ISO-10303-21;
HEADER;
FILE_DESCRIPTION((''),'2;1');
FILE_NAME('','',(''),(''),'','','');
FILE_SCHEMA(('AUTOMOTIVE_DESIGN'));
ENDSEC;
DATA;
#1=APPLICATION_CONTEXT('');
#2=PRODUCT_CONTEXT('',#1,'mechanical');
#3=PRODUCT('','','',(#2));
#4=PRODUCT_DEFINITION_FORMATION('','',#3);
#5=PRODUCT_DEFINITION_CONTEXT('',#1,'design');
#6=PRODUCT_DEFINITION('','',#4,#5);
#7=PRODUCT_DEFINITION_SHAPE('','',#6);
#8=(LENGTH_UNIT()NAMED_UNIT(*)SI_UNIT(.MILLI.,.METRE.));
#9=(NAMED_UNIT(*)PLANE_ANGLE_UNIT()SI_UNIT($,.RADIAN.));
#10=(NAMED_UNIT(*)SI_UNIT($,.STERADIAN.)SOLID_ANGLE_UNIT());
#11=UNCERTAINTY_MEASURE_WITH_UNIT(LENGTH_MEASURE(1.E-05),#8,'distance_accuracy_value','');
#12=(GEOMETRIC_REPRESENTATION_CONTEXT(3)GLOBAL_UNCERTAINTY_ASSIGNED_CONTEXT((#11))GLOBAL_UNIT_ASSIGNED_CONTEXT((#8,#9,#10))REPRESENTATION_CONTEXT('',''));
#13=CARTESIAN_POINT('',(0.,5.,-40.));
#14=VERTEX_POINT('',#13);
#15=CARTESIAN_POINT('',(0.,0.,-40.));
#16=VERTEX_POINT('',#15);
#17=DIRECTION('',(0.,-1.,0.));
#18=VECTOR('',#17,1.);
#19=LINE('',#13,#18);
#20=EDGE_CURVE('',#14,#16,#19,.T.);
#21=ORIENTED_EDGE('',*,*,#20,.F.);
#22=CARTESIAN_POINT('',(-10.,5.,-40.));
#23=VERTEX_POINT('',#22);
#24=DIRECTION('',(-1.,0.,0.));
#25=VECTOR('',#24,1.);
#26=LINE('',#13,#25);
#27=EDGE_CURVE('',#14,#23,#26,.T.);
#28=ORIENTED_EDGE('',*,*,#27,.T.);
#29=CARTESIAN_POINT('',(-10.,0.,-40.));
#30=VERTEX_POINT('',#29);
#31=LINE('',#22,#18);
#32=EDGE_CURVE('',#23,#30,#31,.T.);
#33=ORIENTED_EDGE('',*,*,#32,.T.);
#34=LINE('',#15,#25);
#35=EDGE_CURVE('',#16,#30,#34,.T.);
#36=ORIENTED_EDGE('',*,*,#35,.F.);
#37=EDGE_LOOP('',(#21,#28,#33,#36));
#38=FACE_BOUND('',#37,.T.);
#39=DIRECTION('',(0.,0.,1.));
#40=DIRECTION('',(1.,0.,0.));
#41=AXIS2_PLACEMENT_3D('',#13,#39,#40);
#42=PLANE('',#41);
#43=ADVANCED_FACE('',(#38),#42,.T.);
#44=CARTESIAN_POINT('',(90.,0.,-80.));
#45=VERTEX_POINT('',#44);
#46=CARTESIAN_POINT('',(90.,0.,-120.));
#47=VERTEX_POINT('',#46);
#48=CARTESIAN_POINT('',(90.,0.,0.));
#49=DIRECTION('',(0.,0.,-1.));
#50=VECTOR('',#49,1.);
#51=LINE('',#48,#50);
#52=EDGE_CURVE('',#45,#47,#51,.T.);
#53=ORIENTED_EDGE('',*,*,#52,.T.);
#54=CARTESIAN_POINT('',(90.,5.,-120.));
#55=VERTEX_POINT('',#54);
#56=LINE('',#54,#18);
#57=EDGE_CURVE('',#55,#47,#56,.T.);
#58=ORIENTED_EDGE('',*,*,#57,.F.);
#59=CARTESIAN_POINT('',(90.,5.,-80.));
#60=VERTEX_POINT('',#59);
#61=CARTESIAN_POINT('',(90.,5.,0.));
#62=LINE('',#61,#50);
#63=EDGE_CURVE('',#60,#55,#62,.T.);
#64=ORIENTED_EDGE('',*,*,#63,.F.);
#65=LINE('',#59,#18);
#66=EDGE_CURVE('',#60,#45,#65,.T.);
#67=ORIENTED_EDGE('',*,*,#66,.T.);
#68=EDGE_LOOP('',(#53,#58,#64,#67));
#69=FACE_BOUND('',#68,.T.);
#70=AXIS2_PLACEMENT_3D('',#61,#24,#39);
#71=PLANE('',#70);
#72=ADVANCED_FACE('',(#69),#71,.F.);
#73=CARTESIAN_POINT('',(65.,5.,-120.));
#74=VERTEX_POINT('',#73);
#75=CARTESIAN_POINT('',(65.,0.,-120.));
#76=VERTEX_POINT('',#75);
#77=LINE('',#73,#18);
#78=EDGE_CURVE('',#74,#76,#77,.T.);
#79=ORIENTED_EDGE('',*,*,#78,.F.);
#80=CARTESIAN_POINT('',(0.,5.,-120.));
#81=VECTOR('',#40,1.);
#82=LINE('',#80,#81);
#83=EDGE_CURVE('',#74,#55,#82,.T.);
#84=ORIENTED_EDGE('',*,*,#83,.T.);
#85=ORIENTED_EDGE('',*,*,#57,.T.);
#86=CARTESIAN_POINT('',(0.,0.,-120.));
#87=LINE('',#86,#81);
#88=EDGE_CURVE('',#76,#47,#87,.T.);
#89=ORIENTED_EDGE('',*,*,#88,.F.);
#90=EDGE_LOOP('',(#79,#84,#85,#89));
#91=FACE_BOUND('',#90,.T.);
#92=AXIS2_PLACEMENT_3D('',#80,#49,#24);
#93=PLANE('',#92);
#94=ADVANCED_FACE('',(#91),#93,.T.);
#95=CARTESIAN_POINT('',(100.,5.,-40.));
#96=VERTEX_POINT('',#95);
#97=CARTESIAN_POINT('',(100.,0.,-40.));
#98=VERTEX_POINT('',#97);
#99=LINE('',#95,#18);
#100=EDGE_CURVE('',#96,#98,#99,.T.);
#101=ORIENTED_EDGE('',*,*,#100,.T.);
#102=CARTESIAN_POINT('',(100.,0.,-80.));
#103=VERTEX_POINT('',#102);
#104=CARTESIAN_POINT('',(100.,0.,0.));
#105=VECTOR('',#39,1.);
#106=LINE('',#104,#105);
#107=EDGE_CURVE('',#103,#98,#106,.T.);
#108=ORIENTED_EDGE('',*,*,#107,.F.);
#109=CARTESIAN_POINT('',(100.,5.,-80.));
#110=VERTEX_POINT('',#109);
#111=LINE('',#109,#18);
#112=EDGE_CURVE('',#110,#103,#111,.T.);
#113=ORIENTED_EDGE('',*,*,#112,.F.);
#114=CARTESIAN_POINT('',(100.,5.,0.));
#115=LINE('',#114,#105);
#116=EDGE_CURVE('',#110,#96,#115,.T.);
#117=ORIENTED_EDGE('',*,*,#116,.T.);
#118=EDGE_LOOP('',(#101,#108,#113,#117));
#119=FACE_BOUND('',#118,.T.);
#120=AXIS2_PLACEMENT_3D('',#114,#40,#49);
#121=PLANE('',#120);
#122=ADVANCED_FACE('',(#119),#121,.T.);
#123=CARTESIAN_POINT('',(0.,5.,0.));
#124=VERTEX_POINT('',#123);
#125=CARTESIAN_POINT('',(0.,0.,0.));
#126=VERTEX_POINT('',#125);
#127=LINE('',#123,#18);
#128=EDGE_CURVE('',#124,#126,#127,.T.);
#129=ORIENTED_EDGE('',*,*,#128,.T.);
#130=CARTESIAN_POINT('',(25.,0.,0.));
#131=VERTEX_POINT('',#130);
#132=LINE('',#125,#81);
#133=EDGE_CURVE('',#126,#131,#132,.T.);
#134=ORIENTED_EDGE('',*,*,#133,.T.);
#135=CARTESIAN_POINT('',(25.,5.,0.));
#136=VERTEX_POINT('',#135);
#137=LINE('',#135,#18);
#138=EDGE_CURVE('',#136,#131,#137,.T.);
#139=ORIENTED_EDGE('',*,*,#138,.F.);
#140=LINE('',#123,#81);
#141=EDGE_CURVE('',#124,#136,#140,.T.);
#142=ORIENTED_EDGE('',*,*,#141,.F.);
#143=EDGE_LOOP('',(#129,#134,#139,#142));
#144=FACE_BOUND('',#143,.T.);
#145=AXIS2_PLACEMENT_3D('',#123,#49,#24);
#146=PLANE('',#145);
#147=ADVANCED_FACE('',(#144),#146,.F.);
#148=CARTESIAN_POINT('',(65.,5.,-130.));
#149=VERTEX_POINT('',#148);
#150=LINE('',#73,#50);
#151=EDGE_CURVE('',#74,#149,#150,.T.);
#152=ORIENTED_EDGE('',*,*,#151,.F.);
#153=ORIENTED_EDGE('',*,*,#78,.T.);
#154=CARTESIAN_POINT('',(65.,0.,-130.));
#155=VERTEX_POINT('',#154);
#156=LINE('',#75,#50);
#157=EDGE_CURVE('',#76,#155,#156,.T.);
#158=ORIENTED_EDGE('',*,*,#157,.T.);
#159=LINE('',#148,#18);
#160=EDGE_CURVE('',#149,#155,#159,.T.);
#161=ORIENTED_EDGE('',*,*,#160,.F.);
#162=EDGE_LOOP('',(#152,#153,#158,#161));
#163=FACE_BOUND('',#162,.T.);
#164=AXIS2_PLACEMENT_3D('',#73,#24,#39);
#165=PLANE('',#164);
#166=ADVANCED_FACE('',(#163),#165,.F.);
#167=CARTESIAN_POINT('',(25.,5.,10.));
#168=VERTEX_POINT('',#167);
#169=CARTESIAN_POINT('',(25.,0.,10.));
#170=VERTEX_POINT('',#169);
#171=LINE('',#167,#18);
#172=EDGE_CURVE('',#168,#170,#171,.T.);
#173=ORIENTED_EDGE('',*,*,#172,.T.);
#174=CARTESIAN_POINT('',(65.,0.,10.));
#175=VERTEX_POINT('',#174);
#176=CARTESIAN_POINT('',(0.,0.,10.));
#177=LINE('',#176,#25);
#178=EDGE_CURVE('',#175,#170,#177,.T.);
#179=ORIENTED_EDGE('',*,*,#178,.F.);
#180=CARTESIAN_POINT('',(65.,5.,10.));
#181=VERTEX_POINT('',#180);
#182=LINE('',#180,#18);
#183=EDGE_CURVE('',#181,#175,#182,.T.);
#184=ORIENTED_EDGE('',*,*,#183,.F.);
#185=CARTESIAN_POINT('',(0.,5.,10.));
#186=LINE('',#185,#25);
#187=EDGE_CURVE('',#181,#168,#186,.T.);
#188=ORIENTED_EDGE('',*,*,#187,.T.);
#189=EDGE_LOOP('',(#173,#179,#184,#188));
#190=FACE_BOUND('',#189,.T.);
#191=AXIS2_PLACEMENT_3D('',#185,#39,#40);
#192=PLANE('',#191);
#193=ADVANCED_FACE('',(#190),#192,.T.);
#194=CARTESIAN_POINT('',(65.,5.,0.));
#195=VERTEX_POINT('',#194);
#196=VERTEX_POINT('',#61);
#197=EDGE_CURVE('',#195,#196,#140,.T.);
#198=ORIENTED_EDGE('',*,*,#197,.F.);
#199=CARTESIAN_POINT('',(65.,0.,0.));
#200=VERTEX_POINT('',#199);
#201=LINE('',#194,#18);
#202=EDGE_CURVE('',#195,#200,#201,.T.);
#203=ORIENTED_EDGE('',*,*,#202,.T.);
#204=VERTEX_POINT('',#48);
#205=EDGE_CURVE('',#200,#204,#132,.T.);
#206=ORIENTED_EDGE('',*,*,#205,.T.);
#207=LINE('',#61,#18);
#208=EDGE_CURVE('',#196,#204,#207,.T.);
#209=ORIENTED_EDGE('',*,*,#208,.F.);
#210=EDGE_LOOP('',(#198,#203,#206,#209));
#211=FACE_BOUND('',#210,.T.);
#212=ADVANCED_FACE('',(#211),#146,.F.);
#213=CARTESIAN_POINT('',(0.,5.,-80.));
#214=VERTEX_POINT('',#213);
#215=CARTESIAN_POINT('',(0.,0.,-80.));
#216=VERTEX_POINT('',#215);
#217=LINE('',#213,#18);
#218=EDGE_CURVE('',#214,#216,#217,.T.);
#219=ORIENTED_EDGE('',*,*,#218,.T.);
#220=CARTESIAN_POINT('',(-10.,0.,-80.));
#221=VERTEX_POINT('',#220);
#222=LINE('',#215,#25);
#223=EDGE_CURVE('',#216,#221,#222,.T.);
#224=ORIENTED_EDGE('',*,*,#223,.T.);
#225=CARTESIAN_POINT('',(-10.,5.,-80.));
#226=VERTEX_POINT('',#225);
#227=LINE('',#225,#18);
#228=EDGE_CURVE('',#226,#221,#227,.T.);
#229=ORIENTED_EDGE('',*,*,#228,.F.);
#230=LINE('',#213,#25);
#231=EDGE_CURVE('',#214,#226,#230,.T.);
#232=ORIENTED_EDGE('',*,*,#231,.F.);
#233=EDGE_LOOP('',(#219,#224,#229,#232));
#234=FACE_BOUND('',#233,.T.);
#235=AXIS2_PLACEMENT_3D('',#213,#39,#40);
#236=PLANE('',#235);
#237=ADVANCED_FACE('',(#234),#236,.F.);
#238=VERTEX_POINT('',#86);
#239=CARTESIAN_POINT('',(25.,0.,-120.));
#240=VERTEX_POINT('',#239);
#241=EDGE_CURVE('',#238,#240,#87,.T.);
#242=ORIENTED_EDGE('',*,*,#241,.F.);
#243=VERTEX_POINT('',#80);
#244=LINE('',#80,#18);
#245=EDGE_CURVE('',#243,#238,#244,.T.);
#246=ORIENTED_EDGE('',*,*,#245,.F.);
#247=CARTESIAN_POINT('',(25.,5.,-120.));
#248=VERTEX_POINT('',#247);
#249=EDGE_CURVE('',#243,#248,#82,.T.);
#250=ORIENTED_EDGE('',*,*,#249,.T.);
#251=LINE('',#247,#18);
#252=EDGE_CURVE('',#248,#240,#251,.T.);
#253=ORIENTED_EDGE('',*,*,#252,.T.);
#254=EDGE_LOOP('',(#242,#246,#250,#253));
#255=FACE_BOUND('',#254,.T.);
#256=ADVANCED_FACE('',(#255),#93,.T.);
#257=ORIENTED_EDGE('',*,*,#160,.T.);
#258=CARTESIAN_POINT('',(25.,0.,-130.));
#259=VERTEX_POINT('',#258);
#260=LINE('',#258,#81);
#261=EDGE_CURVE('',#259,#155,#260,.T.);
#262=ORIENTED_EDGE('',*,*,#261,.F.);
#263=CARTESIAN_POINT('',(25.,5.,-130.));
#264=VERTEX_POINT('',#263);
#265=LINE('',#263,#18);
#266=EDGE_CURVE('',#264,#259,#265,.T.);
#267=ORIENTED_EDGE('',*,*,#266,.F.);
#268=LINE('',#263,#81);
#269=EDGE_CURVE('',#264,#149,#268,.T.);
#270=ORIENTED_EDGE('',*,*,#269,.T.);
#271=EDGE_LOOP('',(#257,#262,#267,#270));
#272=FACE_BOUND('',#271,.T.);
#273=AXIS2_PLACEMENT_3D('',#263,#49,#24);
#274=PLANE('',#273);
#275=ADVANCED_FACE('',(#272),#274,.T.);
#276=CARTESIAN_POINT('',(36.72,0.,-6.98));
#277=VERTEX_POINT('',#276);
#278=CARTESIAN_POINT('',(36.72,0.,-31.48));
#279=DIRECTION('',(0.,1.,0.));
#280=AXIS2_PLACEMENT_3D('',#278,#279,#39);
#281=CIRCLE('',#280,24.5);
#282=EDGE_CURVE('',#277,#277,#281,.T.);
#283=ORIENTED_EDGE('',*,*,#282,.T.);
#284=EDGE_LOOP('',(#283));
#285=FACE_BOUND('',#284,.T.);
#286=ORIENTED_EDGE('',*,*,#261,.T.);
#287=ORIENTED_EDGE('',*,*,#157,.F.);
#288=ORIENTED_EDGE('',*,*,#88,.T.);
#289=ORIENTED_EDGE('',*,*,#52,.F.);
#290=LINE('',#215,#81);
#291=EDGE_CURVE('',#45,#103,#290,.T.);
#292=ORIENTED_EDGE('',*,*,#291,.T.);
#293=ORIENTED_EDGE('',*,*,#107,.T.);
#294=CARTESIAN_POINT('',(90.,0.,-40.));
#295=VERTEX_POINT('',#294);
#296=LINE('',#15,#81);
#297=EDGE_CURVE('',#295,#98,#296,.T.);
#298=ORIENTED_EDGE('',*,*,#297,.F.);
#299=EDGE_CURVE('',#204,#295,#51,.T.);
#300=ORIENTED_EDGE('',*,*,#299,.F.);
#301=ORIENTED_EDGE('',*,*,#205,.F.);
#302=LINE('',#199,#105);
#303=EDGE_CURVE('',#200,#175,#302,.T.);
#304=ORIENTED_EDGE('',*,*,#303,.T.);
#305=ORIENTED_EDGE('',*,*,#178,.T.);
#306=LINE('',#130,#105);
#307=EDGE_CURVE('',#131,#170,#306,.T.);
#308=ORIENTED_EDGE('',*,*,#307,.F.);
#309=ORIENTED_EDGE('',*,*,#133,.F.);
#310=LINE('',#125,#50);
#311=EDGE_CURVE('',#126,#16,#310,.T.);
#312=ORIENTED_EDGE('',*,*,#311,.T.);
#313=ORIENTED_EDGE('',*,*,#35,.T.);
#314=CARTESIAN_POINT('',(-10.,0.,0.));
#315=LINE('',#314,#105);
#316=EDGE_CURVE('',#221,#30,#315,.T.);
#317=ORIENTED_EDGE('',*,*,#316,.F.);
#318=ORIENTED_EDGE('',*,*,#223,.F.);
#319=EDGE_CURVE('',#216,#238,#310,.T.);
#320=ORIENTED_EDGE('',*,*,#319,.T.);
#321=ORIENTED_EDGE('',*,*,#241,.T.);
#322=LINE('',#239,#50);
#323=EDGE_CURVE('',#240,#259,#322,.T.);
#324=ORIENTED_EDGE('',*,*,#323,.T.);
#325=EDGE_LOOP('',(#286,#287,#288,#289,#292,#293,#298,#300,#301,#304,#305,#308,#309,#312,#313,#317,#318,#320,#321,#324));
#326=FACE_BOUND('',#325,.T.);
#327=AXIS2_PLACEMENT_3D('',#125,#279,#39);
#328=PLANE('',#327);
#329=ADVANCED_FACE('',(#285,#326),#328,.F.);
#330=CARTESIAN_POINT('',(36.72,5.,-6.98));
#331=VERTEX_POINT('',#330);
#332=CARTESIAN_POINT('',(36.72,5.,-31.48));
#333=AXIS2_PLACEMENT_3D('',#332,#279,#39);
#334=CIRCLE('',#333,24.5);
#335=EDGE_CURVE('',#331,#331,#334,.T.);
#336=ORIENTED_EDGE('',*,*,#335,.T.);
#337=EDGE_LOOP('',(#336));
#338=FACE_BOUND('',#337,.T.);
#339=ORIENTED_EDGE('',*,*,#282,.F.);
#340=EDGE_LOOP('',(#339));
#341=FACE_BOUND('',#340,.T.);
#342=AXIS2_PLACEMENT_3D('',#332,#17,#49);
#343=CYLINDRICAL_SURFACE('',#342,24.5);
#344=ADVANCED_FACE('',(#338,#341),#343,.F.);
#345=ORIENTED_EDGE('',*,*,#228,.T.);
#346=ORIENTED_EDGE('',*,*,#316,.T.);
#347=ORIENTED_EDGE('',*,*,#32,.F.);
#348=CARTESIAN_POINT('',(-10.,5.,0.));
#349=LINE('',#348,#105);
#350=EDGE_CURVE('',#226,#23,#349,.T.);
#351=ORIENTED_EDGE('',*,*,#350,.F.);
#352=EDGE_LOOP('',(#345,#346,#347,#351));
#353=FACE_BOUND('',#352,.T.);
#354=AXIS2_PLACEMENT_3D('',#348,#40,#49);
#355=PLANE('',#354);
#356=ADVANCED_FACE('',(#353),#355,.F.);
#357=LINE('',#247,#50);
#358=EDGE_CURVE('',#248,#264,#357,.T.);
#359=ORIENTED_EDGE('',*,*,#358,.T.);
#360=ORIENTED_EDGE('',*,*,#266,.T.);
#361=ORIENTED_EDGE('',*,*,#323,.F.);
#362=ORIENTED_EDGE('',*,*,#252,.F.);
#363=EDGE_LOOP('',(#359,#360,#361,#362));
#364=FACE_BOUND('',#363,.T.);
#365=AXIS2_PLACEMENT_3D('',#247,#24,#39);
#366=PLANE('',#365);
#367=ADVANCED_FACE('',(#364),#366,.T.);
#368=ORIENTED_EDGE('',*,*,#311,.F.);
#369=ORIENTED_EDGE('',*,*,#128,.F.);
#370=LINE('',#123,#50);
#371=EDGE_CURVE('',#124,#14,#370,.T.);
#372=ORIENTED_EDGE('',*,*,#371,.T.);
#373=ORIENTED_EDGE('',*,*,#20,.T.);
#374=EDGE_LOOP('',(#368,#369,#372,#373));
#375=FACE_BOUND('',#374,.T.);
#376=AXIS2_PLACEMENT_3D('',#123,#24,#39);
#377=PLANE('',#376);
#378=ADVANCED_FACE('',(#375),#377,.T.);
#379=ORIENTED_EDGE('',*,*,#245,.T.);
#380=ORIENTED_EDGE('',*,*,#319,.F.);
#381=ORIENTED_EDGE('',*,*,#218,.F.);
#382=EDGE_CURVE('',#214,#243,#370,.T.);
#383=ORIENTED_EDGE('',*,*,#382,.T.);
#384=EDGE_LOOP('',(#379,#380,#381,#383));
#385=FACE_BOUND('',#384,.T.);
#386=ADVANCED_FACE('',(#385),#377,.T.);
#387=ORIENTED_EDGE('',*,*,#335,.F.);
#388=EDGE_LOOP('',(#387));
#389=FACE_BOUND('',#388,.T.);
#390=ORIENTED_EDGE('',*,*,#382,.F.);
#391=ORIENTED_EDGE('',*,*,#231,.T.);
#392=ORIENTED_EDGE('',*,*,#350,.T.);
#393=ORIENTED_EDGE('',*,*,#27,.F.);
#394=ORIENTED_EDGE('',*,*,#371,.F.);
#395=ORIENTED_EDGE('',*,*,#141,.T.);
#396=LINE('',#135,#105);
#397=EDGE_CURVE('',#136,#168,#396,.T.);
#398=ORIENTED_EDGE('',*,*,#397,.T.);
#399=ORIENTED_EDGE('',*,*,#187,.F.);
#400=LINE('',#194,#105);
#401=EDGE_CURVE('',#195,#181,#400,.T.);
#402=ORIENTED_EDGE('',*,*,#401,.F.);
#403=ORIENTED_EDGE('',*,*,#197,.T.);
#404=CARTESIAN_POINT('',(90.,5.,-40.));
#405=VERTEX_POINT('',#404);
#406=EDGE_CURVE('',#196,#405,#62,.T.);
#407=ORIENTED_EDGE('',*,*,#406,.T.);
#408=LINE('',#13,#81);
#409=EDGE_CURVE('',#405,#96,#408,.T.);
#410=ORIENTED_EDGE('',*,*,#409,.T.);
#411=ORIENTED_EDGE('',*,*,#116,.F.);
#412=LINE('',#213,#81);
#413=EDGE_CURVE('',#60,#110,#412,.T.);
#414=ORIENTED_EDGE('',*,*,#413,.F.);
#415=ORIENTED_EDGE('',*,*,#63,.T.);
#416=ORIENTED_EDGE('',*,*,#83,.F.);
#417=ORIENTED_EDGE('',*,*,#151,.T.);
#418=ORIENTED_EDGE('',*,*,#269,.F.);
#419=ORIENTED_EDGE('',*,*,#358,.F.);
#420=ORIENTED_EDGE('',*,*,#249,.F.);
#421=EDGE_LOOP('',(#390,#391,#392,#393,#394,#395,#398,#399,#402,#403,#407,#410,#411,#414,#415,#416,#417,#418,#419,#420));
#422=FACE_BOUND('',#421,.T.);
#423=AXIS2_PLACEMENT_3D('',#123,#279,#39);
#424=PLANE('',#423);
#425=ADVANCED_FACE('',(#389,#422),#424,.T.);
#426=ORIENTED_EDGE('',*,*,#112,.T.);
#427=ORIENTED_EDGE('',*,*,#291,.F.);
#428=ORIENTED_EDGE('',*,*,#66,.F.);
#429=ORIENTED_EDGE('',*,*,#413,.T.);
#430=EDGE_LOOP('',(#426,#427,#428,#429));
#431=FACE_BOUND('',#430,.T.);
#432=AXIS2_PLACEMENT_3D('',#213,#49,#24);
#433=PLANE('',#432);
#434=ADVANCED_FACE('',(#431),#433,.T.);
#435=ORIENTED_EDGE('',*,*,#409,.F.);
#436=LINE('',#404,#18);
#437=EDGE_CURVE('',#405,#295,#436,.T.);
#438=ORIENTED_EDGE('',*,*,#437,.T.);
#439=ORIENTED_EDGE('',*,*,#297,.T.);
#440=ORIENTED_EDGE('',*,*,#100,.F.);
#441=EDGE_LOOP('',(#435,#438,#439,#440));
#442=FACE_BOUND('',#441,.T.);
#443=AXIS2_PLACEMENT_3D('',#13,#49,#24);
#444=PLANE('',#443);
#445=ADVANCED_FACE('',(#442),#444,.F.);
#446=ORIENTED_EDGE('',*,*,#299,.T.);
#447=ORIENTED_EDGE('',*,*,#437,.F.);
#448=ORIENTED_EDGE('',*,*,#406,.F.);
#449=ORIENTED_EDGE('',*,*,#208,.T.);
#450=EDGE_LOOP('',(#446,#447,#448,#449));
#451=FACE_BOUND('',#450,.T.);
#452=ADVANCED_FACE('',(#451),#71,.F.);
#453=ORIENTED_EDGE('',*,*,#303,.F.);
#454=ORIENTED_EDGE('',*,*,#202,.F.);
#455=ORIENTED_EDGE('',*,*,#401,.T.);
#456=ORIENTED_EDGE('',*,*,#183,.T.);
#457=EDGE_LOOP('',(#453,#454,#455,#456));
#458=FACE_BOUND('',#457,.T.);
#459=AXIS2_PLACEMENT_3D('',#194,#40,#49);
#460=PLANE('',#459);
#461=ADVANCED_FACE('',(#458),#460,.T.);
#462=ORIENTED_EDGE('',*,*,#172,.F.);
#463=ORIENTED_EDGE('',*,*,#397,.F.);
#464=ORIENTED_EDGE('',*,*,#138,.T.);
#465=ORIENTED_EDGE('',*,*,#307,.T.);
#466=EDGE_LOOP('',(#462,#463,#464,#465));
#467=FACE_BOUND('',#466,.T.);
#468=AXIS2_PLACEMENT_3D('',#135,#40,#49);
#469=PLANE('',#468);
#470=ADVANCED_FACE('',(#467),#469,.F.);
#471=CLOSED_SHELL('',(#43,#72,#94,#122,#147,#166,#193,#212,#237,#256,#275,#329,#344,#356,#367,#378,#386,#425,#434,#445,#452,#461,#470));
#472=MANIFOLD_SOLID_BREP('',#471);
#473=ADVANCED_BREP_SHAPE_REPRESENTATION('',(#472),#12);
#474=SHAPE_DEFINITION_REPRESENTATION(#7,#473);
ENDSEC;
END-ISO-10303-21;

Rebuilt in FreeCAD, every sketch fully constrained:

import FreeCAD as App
import Part
import Sketcher

doc = App.newDocument("Part")
body = doc.addObject("PartDesign::Body", "Body")

# Sketch on XZ plane
sketch1 = body.newObject("Sketcher::SketchObject", "Sketch")
sketch1.AttachmentSupport = (doc.getObject("XZ_Plane"), [""])
sketch1.MapMode = "FlatFace"
sketch1.addGeometry([
    Part.LineSegment(App.Vector(0, -40, 0), App.Vector(0, 0, 0)),  # 0
    Part.LineSegment(App.Vector(0, 0, 0), App.Vector(25, 0, 0)),  # 1
    Part.LineSegment(App.Vector(25, 0, 0), App.Vector(25, 10, 0)),  # 2
    Part.LineSegment(App.Vector(25, 10, 0), App.Vector(65, 10, 0)),  # 3
    Part.LineSegment(App.Vector(65, 10, 0), App.Vector(65, 0, 0)),  # 4
    Part.LineSegment(App.Vector(65, 0, 0), App.Vector(90, 0, 0)),  # 5
    Part.LineSegment(App.Vector(90, 0, 0), App.Vector(90, -40, 0)),  # 6
    Part.LineSegment(App.Vector(90, -40, 0), App.Vector(100, -40, 0)),  # 7
    Part.LineSegment(App.Vector(100, -40, 0), App.Vector(100, -80, 0)),  # 8
    Part.LineSegment(App.Vector(100, -80, 0), App.Vector(90, -80, 0)),  # 9
    Part.LineSegment(App.Vector(90, -80, 0), App.Vector(90, -120, 0)),  # 10
    Part.LineSegment(App.Vector(90, -120, 0), App.Vector(65, -120, 0)),  # 11
    Part.LineSegment(App.Vector(65, -120, 0), App.Vector(65, -130, 0)),  # 12
    Part.LineSegment(App.Vector(65, -130, 0), App.Vector(25, -130, 0)),  # 13
    Part.LineSegment(App.Vector(25, -130, 0), App.Vector(25, -120, 0)),  # 14
    Part.LineSegment(App.Vector(25, -120, 0), App.Vector(0, -120, 0)),  # 15
    Part.LineSegment(App.Vector(0, -120, 0), App.Vector(0, -80, 0)),  # 16
    Part.LineSegment(App.Vector(0, -80, 0), App.Vector(-10, -80, 0)),  # 17
    Part.LineSegment(App.Vector(-10, -80, 0), App.Vector(-10, -40, 0)),  # 18
    Part.LineSegment(App.Vector(-10, -40, 0), App.Vector(0, -40, 0)),  # 19
    Part.Circle(App.Vector(37, -31, 0), App.Vector(0, 0, 1), 24),  # 20
], False)
sketch1.addConstraint([
    Sketcher.Constraint("Coincident", 0, 2, 1, 1),
    Sketcher.Constraint("Coincident", 1, 2, 2, 1),
    Sketcher.Constraint("Coincident", 2, 2, 3, 1),
    Sketcher.Constraint("Coincident", 3, 2, 4, 1),
    Sketcher.Constraint("Coincident", 4, 2, 5, 1),
    Sketcher.Constraint("Coincident", 5, 2, 6, 1),
    Sketcher.Constraint("Coincident", 6, 2, 7, 1),
    Sketcher.Constraint("Coincident", 7, 2, 8, 1),
    Sketcher.Constraint("Coincident", 8, 2, 9, 1),
    Sketcher.Constraint("Coincident", 9, 2, 10, 1),
    Sketcher.Constraint("Coincident", 10, 2, 11, 1),
    Sketcher.Constraint("Coincident", 11, 2, 12, 1),
    Sketcher.Constraint("Coincident", 12, 2, 13, 1),
    Sketcher.Constraint("Coincident", 13, 2, 14, 1),
    Sketcher.Constraint("Coincident", 14, 2, 15, 1),
    Sketcher.Constraint("Coincident", 15, 2, 16, 1),
    Sketcher.Constraint("Coincident", 16, 2, 17, 1),
    Sketcher.Constraint("Coincident", 17, 2, 18, 1),
    Sketcher.Constraint("Coincident", 18, 2, 19, 1),
    Sketcher.Constraint("Coincident", 19, 2, 0, 1),
    Sketcher.Constraint("Vertical", 0),
    Sketcher.Constraint("Horizontal", 1),
    Sketcher.Constraint("Vertical", 2),
    Sketcher.Constraint("Horizontal", 3),
    Sketcher.Constraint("Vertical", 4),
    Sketcher.Constraint("Horizontal", 5),
    Sketcher.Constraint("Vertical", 6),
    Sketcher.Constraint("Horizontal", 7),
    Sketcher.Constraint("Vertical", 8),
    Sketcher.Constraint("Horizontal", 9),
    Sketcher.Constraint("Vertical", 10),
    Sketcher.Constraint("Horizontal", 11),
    Sketcher.Constraint("Vertical", 12),
    Sketcher.Constraint("Horizontal", 13),
    Sketcher.Constraint("Vertical", 14),
    Sketcher.Constraint("Horizontal", 15),
    Sketcher.Constraint("Vertical", 16),
    Sketcher.Constraint("Horizontal", 17),
    Sketcher.Constraint("Vertical", 18),
    Sketcher.Constraint("Horizontal", 19),
    Sketcher.Constraint("Coincident", 0, 2, -1, 1),
    Sketcher.Constraint("PointOnObject", 4, 2, -1),
    Sketcher.Constraint("PointOnObject", 15, 2, -2),
    Sketcher.Constraint("Horizontal", 11, 2, 14, 2),
    Sketcher.Constraint("Horizontal", 9, 2, 16, 2),
    Sketcher.Constraint("Horizontal", 7, 2, 18, 2),
    Sketcher.Constraint("Vertical", 6, 2, 9, 2),
    Sketcher.Constraint("Vertical", 4, 2, 11, 2),
    Sketcher.Constraint("Vertical", 2, 2, 13, 2),
    Sketcher.Constraint("Equal", 1, 5),
    Sketcher.Constraint("Equal", 9, 17),
    Sketcher.Constraint("Equal", 13, 0),
    Sketcher.Constraint("Equal", 19, 2),
    Sketcher.Constraint("Equal", 6, 8),
    Sketcher.Constraint("Equal", 8, 10),
    Sketcher.Constraint("Equal", 4, 12),
    Sketcher.Constraint("Diameter", 20, 49.0),
    Sketcher.Constraint("DistanceX", 1, 1, 1, 2, 25.0),
    Sketcher.Constraint("DistanceX", 3, 1, 3, 2, 40.0),
    Sketcher.Constraint("DistanceX", 7, 1, 7, 2, 10.0),
    Sketcher.Constraint("DistanceX", -1, 1, 20, 3, 36.72),
    Sketcher.Constraint("DistanceY", 20, 3, -1, 1, 31.48),
])
pad1 = body.newObject("PartDesign::Pad", "Pad")
pad1.Profile = sketch1
pad1.Length = 5
pad1.Reversed = True

doc.recompute()
